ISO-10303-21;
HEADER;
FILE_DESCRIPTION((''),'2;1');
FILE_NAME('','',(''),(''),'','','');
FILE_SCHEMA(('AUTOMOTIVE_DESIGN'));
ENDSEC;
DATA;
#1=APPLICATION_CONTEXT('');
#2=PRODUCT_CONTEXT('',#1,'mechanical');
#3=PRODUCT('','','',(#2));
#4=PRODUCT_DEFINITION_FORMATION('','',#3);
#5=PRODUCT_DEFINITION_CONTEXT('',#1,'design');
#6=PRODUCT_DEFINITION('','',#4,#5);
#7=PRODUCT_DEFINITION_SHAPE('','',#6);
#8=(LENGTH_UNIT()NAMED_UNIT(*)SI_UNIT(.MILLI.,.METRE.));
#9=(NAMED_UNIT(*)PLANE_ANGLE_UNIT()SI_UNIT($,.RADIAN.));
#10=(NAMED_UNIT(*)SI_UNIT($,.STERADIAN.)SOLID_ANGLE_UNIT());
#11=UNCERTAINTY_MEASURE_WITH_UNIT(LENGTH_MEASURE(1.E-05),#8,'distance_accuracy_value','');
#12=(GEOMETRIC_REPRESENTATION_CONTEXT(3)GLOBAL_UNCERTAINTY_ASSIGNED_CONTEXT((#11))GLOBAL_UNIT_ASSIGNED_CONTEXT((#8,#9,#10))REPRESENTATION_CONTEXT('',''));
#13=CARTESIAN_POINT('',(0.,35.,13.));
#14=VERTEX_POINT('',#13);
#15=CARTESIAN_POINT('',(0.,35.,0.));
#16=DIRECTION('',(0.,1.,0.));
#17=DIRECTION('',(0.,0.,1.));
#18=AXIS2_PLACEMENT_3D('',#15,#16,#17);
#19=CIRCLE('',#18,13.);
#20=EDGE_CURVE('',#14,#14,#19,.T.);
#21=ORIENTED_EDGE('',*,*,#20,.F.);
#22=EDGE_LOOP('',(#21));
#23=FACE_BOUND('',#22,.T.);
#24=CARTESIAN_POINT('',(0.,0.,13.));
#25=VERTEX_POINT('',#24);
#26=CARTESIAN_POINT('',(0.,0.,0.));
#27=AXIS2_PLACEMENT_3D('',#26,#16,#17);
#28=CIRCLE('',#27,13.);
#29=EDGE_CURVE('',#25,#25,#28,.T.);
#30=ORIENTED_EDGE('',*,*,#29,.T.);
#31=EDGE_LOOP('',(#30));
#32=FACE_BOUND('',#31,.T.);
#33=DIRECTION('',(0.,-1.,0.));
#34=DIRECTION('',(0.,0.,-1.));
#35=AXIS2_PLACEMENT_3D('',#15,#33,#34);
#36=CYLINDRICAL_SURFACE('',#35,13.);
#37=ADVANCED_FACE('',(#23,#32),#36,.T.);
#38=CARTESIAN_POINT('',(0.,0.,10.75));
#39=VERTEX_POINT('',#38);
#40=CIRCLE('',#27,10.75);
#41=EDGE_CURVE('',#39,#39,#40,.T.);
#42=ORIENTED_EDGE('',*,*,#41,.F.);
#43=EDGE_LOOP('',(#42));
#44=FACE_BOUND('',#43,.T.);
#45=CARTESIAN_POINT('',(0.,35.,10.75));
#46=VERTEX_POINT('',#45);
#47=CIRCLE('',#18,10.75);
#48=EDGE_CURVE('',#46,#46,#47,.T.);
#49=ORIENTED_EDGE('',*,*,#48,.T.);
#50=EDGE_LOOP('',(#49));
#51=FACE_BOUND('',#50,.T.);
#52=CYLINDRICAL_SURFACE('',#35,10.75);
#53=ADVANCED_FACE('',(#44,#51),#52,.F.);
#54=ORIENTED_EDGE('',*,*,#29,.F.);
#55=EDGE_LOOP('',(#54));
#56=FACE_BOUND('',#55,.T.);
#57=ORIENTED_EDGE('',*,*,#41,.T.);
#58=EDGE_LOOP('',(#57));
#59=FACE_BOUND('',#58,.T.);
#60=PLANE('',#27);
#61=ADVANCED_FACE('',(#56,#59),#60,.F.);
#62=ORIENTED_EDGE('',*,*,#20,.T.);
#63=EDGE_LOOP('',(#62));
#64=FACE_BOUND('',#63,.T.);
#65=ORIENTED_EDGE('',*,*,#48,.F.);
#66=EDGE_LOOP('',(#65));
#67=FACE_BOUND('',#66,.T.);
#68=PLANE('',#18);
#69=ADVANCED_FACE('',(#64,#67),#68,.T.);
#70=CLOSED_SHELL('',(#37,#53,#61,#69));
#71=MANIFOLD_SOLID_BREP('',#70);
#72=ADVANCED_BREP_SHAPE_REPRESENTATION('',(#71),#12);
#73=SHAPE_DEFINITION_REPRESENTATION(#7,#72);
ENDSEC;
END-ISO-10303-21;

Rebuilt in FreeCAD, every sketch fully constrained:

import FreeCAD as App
import Part
import Sketcher
from FreeCAD import Vector

doc = App.newDocument("Part")
body = doc.addObject("PartDesign::Body", "Body")

# Sketch on XZ plane
sketch1 = body.newObject("Sketcher::SketchObject", "Sketch")
sketch1.AttachmentSupport = (doc.getObject("XZ_Plane"), [""])
sketch1.MapMode = "FlatFace"
sketch1.addGeometry([
    Part.Circle(Vector(0, 0, 0), Vector(0, 0, 1), 13),
    Part.Circle(Vector(0, 0, 0), Vector(0, 0, 1), 11),
], False)
sketch1.addConstraint([
    Sketcher.Constraint("Coincident", 0, 3, -1, 1),
    Sketcher.Constraint("Coincident", 1, 3, -1, 1),
    Sketcher.Constraint("Diameter", 0, 26.0),
    Sketcher.Constraint("Diameter", 1, 21.5),
])
pad1 = body.newObject("PartDesign::Pad", "Pad")
pad1.Profile = sketch1
pad1.Length = 35
pad1.Reversed = True

doc.recompute()
